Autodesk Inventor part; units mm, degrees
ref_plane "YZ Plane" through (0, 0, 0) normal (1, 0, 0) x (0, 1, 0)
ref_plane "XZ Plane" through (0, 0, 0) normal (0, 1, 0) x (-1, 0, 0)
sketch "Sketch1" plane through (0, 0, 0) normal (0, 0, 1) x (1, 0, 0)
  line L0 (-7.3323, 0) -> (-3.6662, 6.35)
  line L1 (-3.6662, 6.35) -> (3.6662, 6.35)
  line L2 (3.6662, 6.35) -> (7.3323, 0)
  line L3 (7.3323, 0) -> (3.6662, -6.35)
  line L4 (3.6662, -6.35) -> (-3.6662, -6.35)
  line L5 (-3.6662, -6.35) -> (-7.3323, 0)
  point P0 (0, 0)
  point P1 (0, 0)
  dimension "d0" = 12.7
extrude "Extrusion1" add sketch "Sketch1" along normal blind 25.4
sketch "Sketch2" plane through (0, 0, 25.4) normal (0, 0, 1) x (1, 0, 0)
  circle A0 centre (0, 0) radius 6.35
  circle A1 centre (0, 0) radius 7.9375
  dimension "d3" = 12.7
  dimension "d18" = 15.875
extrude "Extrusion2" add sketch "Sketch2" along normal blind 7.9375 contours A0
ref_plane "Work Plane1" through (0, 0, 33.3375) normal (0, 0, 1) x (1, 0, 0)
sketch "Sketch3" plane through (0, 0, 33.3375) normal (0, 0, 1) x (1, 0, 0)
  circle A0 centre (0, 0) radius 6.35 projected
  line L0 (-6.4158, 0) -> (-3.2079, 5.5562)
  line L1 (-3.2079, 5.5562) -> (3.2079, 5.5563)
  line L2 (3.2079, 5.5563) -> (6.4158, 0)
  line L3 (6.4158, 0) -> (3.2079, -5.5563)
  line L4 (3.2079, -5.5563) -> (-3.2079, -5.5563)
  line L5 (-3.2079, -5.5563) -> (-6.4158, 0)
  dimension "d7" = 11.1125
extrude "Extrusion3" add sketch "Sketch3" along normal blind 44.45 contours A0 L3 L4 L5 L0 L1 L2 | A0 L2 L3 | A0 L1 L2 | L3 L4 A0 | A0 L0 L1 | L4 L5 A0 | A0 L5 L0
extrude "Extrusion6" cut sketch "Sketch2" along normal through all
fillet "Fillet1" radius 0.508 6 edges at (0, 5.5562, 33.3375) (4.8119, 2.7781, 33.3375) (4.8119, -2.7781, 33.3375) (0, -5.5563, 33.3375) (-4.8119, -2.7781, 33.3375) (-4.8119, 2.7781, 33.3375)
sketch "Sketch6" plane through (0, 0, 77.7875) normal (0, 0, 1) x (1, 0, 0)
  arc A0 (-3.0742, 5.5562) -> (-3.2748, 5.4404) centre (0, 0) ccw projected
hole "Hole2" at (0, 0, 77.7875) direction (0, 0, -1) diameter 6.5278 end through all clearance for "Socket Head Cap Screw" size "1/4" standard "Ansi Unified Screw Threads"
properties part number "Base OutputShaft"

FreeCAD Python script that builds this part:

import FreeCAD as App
import Part
import Sketcher
Q = App.Units.Quantity


def edges_at(feature, points):
    """Names of the edges that pass closest to the given points."""
    edges = feature.Shape.Edges
    near = lambda p: min(range(len(edges)), key=lambda i: edges[i].distToShape(Part.Vertex(*p))[0])
    return sorted({f"Edge{near(p) + 1}" for p in points})

doc = App.newDocument("Part")
body = doc.addObject("PartDesign::Body", "Body")

# Sketch on XY plane
sketch1 = body.newObject("Sketcher::SketchObject", "Sketch")
sketch1.AttachmentSupport = (doc.getObject("XY_Plane"), [""])
sketch1.MapMode = "FlatFace"
sketch1.addGeometry(Part.LineSegment(App.Vector(-4, 6, 0), App.Vector(-7, 0, 0)), False)
sketch1.addGeometry(Part.LineSegment(App.Vector(-7, 0, 0), App.Vector(-4, -6, 0)), False)
sketch1.addGeometry(Part.LineSegment(App.Vector(-4, -6, 0), App.Vector(4, -6, 0)), False)
sketch1.addGeometry(Part.LineSegment(App.Vector(4, -6, 0), App.Vector(7, 0, 0)), False)
sketch1.addGeometry(Part.LineSegment(App.Vector(7, 0, 0), App.Vector(4, 6, 0)), False)
sketch1.addGeometry(Part.LineSegment(App.Vector(4, 6, 0), App.Vector(-4, 6, 0)), False)
sketch1.addConstraint(Sketcher.Constraint("Coincident", 0, 2, 1, 1))
sketch1.addConstraint(Sketcher.Constraint("Coincident", 1, 2, 2, 1))
sketch1.addConstraint(Sketcher.Constraint("Coincident", 2, 2, 3, 1))
sketch1.addConstraint(Sketcher.Constraint("Coincident", 3, 2, 4, 1))
sketch1.addConstraint(Sketcher.Constraint("Coincident", 4, 2, 5, 1))
sketch1.addConstraint(Sketcher.Constraint("Coincident", 5, 2, 0, 1))
sketch1.addConstraint(Sketcher.Constraint("Horizontal", 2))
sketch1.addConstraint(Sketcher.Constraint("Horizontal", 5))
sketch1.addConstraint(Sketcher.Constraint("Symmetric", 0, 2, 3, 2, -1, 1))
sketch1.addConstraint(Sketcher.Constraint("Symmetric", 1, 2, 4, 2, -1, 1))
sketch1.addConstraint(Sketcher.Constraint("PointOnObject", 0, 2, -1))
sketch1.addConstraint(Sketcher.Constraint("Parallel", 0, 3))
sketch1.addConstraint(Sketcher.Constraint("Vertical", 2, 2, 4, 2))
sketch1.addConstraint(Sketcher.Constraint("DistanceY", 2, 2, 4, 2, Q("0.5 in")))
sketch1.addConstraint(Sketcher.Constraint("Angle", 0, Q("-119.9995 deg")))
sketch1.addConstraint(Sketcher.Constraint("DistanceX", 0, 2, 2, 2, Q("0.433 in")))
pad1 = body.newObject("PartDesign::Pad", "Pad")
pad1.Profile = sketch1
pad1.Length = Q("1 in")

# Sketch on XY plane
sketch2 = body.newObject("Sketcher::SketchObject", "Sketch001")
sketch2.AttachmentSupport = (doc.getObject("XY_Plane"), [""])
sketch2.MapMode = "FlatFace"
sketch2.AttachmentOffset = App.Placement(App.Vector(0, 0, 1 * 25.4), App.Rotation())
sketch2.addGeometry(Part.Circle(App.Vector(0, 0, 0), App.Vector(0, 0, 1), 6), False)
sketch2.addConstraint(Sketcher.Constraint("Coincident", 0, 3, -1, 1))
sketch2.addConstraint(Sketcher.Constraint("Diameter", 0, Q("0.5 in")))
pad2 = body.newObject("PartDesign::Pad", "Pad001")
pad2.Profile = sketch2
pad2.Length = Q("0.3125 in")

# Sketch on XY plane
sketch3 = body.newObject("Sketcher::SketchObject", "Sketch002")
sketch3.AttachmentSupport = (doc.getObject("XY_Plane"), [""])
sketch3.MapMode = "FlatFace"
sketch3.AttachmentOffset = App.Placement(App.Vector(0, 0, 1.3125 * 25.4), App.Rotation())
sketch3.addGeometry(Part.LineSegment(App.Vector(6, 0, 0), App.Vector(3, 6, 0)), False)
sketch3.addGeometry(Part.LineSegment(App.Vector(3, 6, 0), App.Vector(-3, 6, 0)), False)
sketch3.addGeometry(Part.LineSegment(App.Vector(-3, 6, 0), App.Vector(-6, 0, 0)), False)
sketch3.addGeometry(Part.LineSegment(App.Vector(-6, 0, 0), App.Vector(-3, -6, 0)), False)
sketch3.addGeometry(Part.LineSegment(App.Vector(-3, -6, 0), App.Vector(3, -6, 0)), False)
sketch3.addGeometry(Part.LineSegment(App.Vector(3, -6, 0), App.Vector(6, 0, 0)), False)
sketch3.addConstraint(Sketcher.Constraint("Coincident", 0, 2, 1, 1))
sketch3.addConstraint(Sketcher.Constraint("Coincident", 1, 2, 2, 1))
sketch3.addConstraint(Sketcher.Constraint("Coincident", 2, 2, 3, 1))
sketch3.addConstraint(Sketcher.Constraint("Coincident", 3, 2, 4, 1))
sketch3.addConstraint(Sketcher.Constraint("Coincident", 4, 2, 5, 1))
sketch3.addConstraint(Sketcher.Constraint("Coincident", 5, 2, 0, 1))
sketch3.addConstraint(Sketcher.Constraint("Horizontal", 1))
sketch3.addConstraint(Sketcher.Constraint("Horizontal", 4))
sketch3.addConstraint(Sketcher.Constraint("Symmetric", 0, 2, 3, 2, -1, 1))
sketch3.addConstraint(Sketcher.Constraint("Symmetric", 2, 2, 5, 2, -1, 1))
sketch3.addConstraint(Sketcher.Constraint("PointOnObject", 2, 2, -1))
sketch3.addConstraint(Sketcher.Constraint("Parallel", 2, 5))
sketch3.addConstraint(Sketcher.Constraint("Vertical", 1, 2, 3, 2))
sketch3.addConstraint(Sketcher.Constraint("Angle", 0, Q("119.9998 deg")))
sketch3.addConstraint(Sketcher.Constraint("DistanceY", 3, 2, 1, 2, Q("0.4375 in")))
sketch3.addConstraint(Sketcher.Constraint("DistanceX", 1, 2, 1, 1, Q("0.2526 in")))
pad3 = body.newObject("PartDesign::Pad", "Pad002")
pad3.Profile = sketch3
pad3.Length = Q("1.75 in")

# Sketch on XY plane
sketch4 = body.newObject("Sketcher::SketchObject", "Sketch003")
sketch4.AttachmentSupport = (doc.getObject("XY_Plane"), [""])
sketch4.MapMode = "FlatFace"
sketch4.AttachmentOffset = App.Placement(App.Vector(0, 0, 1 * 25.4), App.Rotation())
sketch4.addGeometry(Part.Circle(App.Vector(0, 0, 0), App.Vector(0, 0, 1), 8), False)
sketch4.addGeometry(Part.Circle(App.Vector(0, 0, 0), App.Vector(0, 0, 1), 6), False)
sketch4.addConstraint(Sketcher.Constraint("Coincident", 0, 3, -1, 1))
sketch4.addConstraint(Sketcher.Constraint("Coincident", 1, 3, -1, 1))
sketch4.addConstraint(Sketcher.Constraint("Diameter", 1, Q("0.5 in")))
sketch4.addConstraint(Sketcher.Constraint("Diameter", 0, Q("0.625 in")))
pocket1 = body.newObject("PartDesign::Pocket", "Pocket")
pocket1.Profile = sketch4
pocket1.Type = "ThroughAll"
pocket1.Reversed = True
doc.recompute()

fillet = body.newObject("PartDesign::Fillet", "Fillet")
fillet.Base = (pocket1, edges_at(pocket1, [
    (0, 5.556, 33.337),
    (4.812, 2.778, 33.337),
    (4.812, -2.778, 33.337),
    (0, -5.556, 33.337),
    (-4.812, -2.778, 33.337),
    (-4.812, 2.778, 33.337),
]))
fillet.Radius = Q("0.02 in")

# Sketch on XY plane
sketch5 = body.newObject("Sketcher::SketchObject", "Sketch004")
sketch5.AttachmentSupport = (doc.getObject("XY_Plane"), [""])
sketch5.MapMode = "FlatFace"
sketch5.AttachmentOffset = App.Placement(App.Vector(0, 0, 3.0625 * 25.4), App.Rotation())
sketch5.addGeometry(Part.Circle(App.Vector(0, 0, 0), App.Vector(0, 0, 1), 3.3), False)
sketch5.addConstraint(Sketcher.Constraint("Coincident", 0, 3, -1, 1))
sketch5.addConstraint(Sketcher.Constraint("Diameter", 0, Q("0.257 in")))
doc.recompute()
hole = body.newObject("PartDesign::Hole", "Hole")
hole.Profile = sketch5
hole.ThreadType = "None"
hole.Diameter = Q("0.257 in")
hole.DepthType = "ThroughAll"

doc.recompute()
